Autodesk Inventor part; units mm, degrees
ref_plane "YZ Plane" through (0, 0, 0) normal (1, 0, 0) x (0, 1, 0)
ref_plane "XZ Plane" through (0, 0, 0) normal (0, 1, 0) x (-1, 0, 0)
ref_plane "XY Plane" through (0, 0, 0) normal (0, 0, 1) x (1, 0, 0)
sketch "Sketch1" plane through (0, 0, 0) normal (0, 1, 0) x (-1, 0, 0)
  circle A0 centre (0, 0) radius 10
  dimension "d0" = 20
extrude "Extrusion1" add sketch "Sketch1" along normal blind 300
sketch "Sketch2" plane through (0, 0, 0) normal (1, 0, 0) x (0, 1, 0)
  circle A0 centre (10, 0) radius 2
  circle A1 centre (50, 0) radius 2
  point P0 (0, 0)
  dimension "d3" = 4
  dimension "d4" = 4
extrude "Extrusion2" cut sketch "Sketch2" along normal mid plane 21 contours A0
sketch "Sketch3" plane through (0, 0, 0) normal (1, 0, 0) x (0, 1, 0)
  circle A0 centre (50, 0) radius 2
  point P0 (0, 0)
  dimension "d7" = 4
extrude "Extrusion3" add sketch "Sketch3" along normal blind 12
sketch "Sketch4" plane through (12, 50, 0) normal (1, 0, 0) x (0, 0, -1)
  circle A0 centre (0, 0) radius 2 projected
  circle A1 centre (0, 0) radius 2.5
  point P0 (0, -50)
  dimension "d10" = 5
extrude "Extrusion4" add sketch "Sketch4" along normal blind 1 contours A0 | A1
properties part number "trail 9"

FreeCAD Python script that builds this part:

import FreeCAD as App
import Part
import Sketcher

V = App.Vector
Q = App.Units.Quantity

doc = App.newDocument("Part")
body = doc.addObject("PartDesign::Body", "Body")

# Sketch on XZ plane
sketch1 = doc.addObject("Sketcher::SketchObject", "Sketch")
body.addObject(sketch1)
sketch1.AttachmentSupport = (doc.XZ_Plane, [""])
sketch1.MapMode = "FlatFace"
sketch1.addGeometry(Part.Circle(V(0, 0, 0), V(0, 0, 1), 10), False)
sketch1.addConstraint([
    Sketcher.Constraint("Coincident", 0, 3, -1, 1),
    Sketcher.Constraint("Diameter", 0, Q("20 mm")),
])
pad1 = doc.addObject("PartDesign::Pad", "Pad")
body.addObject(pad1)
pad1.Profile = sketch1
pad1.Length = 300
pad1.Reversed = True

# Sketch on YZ plane
sketch2 = doc.addObject("Sketcher::SketchObject", "Sketch001")
body.addObject(sketch2)
sketch2.AttachmentSupport = (doc.YZ_Plane, [""])
sketch2.MapMode = "FlatFace"
sketch2.addGeometry(Part.Circle(V(10, 0, 0), V(0, 0, 1), 2), False)
sketch2.addConstraint([
    Sketcher.Constraint("PointOnObject", 0, 3, -1),
    Sketcher.Constraint("Diameter", 0, Q("4 mm")),
    Sketcher.Constraint("DistanceX", -1, 1, 0, 3, Q("10 mm")),
])
pocket1 = doc.addObject("PartDesign::Pocket", "Pocket")
body.addObject(pocket1)
pocket1.Profile = sketch2
pocket1.Length = 21
pocket1.Midplane = True

# Sketch on YZ plane
sketch3 = doc.addObject("Sketcher::SketchObject", "Sketch002")
body.addObject(sketch3)
sketch3.AttachmentSupport = (doc.YZ_Plane, [""])
sketch3.MapMode = "FlatFace"
sketch3.addGeometry(Part.Circle(V(50, 0, 0), V(0, 0, 1), 2), False)
sketch3.addConstraint([
    Sketcher.Constraint("PointOnObject", 0, 3, -1),
    Sketcher.Constraint("Diameter", 0, Q("4 mm")),
    Sketcher.Constraint("DistanceX", -1, 1, 0, 3, Q("50 mm")),
])
pad2 = doc.addObject("PartDesign::Pad", "Pad001")
body.addObject(pad2)
pad2.Profile = sketch3
pad2.Length = 12

# Sketch on YZ plane
sketch4 = doc.addObject("Sketcher::SketchObject", "Sketch003")
body.addObject(sketch4)
sketch4.AttachmentSupport = (doc.YZ_Plane, [""])
sketch4.MapMode = "FlatFace"
sketch4.AttachmentOffset = App.Placement(V(0, 0, 12), App.Rotation())
sketch4.addGeometry(Part.Circle(V(50, 0, 0), V(0, 0, 1), 2.5), False)
sketch4.addConstraint([
    Sketcher.Constraint("PointOnObject", 0, 3, -1),
    Sketcher.Constraint("Diameter", 0, Q("5 mm")),
    Sketcher.Constraint("DistanceX", -1, 1, 0, 3, Q("50 mm")),
])
pad3 = doc.addObject("PartDesign::Pad", "Pad002")
body.addObject(pad3)
pad3.Profile = sketch4
pad3.Length = 1

doc.recompute()
